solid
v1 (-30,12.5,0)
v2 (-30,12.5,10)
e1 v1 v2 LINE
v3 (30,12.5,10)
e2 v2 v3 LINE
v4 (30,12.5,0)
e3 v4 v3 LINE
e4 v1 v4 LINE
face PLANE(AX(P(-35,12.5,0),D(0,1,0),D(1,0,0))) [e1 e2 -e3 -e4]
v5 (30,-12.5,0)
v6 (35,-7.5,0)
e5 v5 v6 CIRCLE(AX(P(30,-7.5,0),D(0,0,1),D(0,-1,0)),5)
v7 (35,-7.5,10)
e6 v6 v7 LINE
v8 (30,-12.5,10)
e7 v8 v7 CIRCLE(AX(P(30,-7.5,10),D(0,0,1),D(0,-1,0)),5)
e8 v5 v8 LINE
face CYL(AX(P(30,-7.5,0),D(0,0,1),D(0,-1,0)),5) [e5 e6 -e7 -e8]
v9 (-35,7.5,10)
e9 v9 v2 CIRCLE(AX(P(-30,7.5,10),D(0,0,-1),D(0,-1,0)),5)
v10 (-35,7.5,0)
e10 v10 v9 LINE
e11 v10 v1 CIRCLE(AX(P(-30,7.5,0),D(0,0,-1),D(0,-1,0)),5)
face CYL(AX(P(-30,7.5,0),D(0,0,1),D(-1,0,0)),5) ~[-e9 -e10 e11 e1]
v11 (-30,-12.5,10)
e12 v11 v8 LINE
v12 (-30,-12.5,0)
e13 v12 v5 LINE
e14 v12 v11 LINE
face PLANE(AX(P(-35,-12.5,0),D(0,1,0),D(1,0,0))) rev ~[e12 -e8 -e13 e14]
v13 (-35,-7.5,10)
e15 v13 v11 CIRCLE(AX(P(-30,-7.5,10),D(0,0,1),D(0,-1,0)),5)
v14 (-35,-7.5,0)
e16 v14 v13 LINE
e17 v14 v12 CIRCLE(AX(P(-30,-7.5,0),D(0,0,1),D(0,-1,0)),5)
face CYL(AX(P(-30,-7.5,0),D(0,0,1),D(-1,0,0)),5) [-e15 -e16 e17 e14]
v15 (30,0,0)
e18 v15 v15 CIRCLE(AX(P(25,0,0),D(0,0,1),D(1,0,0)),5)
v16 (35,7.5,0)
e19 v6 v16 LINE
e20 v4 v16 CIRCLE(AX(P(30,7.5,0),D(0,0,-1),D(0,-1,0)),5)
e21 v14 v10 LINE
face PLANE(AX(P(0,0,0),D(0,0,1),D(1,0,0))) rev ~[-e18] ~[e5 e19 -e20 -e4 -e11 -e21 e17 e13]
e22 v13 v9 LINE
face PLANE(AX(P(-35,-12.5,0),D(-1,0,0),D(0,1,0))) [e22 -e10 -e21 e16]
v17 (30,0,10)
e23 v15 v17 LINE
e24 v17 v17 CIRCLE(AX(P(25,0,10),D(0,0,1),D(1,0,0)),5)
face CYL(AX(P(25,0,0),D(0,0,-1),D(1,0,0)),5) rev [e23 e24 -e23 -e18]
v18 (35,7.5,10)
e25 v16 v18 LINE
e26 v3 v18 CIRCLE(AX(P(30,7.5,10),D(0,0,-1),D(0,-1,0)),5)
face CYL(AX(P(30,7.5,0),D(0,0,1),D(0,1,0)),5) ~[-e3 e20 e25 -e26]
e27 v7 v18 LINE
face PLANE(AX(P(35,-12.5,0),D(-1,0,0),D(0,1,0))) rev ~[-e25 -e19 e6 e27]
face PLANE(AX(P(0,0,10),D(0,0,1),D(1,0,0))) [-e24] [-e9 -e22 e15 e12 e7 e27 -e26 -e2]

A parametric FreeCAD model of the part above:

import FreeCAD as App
import Part
import Sketcher

V = App.Vector


def edges_at(feature, points):
    """Names of the edges that pass closest to the given points."""
    edges = feature.Shape.Edges
    near = lambda p: min(range(len(edges)), key=lambda i: edges[i].distToShape(Part.Vertex(*p))[0])
    return sorted({f"Edge{near(p) + 1}" for p in points})


def add_polygon(sketch, points):
    """Adds a closed chain of lines whose ends are joined by coincident constraints."""
    first, n = sketch.GeometryCount, len(points)
    for a, b in zip(points, points[1:] + points[:1]):
        sketch.addGeometry(Part.LineSegment(App.Vector(*a, 0), App.Vector(*b, 0)), False)
    for i in range(n):
        sketch.addConstraint(Sketcher.Constraint("Coincident", first + i, 2, first + (i + 1) % n, 1))

doc = App.newDocument("Part")
body = doc.addObject("PartDesign::Body", "Body")

sketch1 = body.newObject("Sketcher::SketchObject", "Sketch")
sketch1.AttachmentSupport = (doc.getObject("XY_Plane"), [""])
sketch1.MapMode = "FlatFace"
add_polygon(sketch1, [(-35, 12.5), (-35, -12.5), (35, -12.5), (35, 12.5)])
sketch1.addGeometry(Part.Circle(V(25, 0, 0), V(0, 0, 1), 5), False)
sketch1.addConstraint(Sketcher.Constraint("Vertical", 0))
sketch1.addConstraint(Sketcher.Constraint("Horizontal", 1))
sketch1.addConstraint(Sketcher.Constraint("Vertical", 2))
sketch1.addConstraint(Sketcher.Constraint("Horizontal", 3))
sketch1.addConstraint(Sketcher.Constraint("Symmetric", 0, 2, 2, 2, -1, 1))
sketch1.addConstraint(Sketcher.Constraint("PointOnObject", 4, 3, -1))
sketch1.addConstraint(Sketcher.Constraint("Diameter", 4, 10.0))
sketch1.addConstraint(Sketcher.Constraint("DistanceX", 1, 1, 1, 2, 70.0))
sketch1.addConstraint(Sketcher.Constraint("DistanceY", 0, 2, 0, 1, 25.0))
sketch1.addConstraint(Sketcher.Constraint("DistanceX", -1, 1, 4, 3, 25.0))
pad1 = body.newObject("PartDesign::Pad", "Pad")
pad1.Profile = sketch1
pad1.Length = 10
doc.recompute()

fillet = body.newObject("PartDesign::Fillet", "Fillet")
fillet.Base = (pad1, edges_at(pad1, [
    (-35, -12.5, 5),
    (-35, 12.5, 5),
    (35, -12.5, 5),
    (35, 12.5, 5),
]))
fillet.Radius = 5

doc.recompute()
